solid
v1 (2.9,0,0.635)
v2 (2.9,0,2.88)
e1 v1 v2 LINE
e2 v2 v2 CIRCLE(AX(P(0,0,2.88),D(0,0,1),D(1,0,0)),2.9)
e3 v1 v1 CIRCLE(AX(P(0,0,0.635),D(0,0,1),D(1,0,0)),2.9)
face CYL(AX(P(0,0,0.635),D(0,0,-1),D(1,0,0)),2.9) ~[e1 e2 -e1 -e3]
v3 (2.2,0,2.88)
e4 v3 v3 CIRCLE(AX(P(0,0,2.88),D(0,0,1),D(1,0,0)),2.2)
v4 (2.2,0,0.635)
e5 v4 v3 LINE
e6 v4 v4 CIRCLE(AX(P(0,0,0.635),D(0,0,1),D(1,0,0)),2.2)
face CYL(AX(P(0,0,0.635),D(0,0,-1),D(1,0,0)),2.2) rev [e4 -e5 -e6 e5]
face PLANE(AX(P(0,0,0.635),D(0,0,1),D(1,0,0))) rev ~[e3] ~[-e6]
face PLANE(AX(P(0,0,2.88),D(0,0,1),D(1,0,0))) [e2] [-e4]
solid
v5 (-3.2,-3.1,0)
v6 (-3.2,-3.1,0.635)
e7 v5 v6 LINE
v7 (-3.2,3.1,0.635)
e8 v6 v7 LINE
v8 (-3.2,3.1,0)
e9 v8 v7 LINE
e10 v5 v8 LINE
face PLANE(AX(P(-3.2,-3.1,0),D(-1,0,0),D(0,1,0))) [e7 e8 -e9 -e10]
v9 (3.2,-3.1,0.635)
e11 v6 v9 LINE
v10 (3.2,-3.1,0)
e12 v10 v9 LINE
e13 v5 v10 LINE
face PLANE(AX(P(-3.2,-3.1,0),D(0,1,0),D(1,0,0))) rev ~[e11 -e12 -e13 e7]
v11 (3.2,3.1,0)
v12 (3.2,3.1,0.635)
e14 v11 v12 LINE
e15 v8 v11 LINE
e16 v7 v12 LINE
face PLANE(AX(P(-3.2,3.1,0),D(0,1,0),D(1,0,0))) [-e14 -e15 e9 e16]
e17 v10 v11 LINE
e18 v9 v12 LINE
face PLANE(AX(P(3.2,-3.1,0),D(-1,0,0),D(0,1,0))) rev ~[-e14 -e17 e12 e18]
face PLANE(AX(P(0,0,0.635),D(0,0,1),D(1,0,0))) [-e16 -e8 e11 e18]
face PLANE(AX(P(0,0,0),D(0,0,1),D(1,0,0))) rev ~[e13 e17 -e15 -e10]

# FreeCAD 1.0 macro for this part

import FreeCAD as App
import Part
import Sketcher
from FreeCAD import Vector

doc = App.newDocument("Part")
body = doc.addObject("PartDesign::Body", "Body")

# Sketch on XY plane
sketch1 = body.newObject("Sketcher::SketchObject", "Sketch")
sketch1.AttachmentSupport = (doc.getObject("XY_Plane"), [""])
sketch1.MapMode = "FlatFace"
sketch1.addGeometry([
    Part.LineSegment(Vector(-3.2, 3.1, 0), Vector(-3.2, -3.1, 0)),
    Part.LineSegment(Vector(-3.2, -3.1, 0), Vector(3.2, -3.1, 0)),
    Part.LineSegment(Vector(3.2, -3.1, 0), Vector(3.2, 3.1, 0)),
    Part.LineSegment(Vector(3.2, 3.1, 0), Vector(-3.2, 3.1, 0)),
], False)
sketch1.addConstraint([
    Sketcher.Constraint("Coincident", 0, 2, 1, 1),
    Sketcher.Constraint("Coincident", 1, 2, 2, 1),
    Sketcher.Constraint("Coincident", 2, 2, 3, 1),
    Sketcher.Constraint("Coincident", 3, 2, 0, 1),
    Sketcher.Constraint("Vertical", 0),
    Sketcher.Constraint("Horizontal", 1),
    Sketcher.Constraint("Vertical", 2),
    Sketcher.Constraint("Horizontal", 3),
    Sketcher.Constraint("Symmetric", 0, 2, 2, 2, -1, 1),
    Sketcher.Constraint("DistanceX", 1, 1, 1, 2, 6.4),
    Sketcher.Constraint("DistanceY", 0, 2, 0, 1, 6.2),
])
pad1 = body.newObject("PartDesign::Pad", "Pad")
pad1.Profile = sketch1
pad1.Length = 0.635
body2 = doc.addObject("PartDesign::Body", "Body001")

# Sketch on XY plane
sketch2 = body2.newObject("Sketcher::SketchObject", "Sketch001")
sketch2.AttachmentSupport = (doc.getObject("XY_Plane001"), [""])
sketch2.MapMode = "FlatFace"
sketch2.AttachmentOffset = App.Placement(Vector(0, 0, 0.635), App.Rotation())
sketch2.addGeometry([
    Part.Circle(Vector(0, 0, 0), Vector(0, 0, 1), 2.9),
    Part.Circle(Vector(0, 0, 0), Vector(0, 0, 1), 2.2),
], False)
sketch2.addConstraint([
    Sketcher.Constraint("Coincident", 0, 3, -1, 1),
    Sketcher.Constraint("Coincident", 1, 3, -1, 1),
    Sketcher.Constraint("Diameter", 0, 5.8),
    Sketcher.Constraint("Diameter", 1, 4.4),
])
pad2 = body2.newObject("PartDesign::Pad", "Pad001")
pad2.Profile = sketch2
pad2.Length = 2.245

doc.recompute()
